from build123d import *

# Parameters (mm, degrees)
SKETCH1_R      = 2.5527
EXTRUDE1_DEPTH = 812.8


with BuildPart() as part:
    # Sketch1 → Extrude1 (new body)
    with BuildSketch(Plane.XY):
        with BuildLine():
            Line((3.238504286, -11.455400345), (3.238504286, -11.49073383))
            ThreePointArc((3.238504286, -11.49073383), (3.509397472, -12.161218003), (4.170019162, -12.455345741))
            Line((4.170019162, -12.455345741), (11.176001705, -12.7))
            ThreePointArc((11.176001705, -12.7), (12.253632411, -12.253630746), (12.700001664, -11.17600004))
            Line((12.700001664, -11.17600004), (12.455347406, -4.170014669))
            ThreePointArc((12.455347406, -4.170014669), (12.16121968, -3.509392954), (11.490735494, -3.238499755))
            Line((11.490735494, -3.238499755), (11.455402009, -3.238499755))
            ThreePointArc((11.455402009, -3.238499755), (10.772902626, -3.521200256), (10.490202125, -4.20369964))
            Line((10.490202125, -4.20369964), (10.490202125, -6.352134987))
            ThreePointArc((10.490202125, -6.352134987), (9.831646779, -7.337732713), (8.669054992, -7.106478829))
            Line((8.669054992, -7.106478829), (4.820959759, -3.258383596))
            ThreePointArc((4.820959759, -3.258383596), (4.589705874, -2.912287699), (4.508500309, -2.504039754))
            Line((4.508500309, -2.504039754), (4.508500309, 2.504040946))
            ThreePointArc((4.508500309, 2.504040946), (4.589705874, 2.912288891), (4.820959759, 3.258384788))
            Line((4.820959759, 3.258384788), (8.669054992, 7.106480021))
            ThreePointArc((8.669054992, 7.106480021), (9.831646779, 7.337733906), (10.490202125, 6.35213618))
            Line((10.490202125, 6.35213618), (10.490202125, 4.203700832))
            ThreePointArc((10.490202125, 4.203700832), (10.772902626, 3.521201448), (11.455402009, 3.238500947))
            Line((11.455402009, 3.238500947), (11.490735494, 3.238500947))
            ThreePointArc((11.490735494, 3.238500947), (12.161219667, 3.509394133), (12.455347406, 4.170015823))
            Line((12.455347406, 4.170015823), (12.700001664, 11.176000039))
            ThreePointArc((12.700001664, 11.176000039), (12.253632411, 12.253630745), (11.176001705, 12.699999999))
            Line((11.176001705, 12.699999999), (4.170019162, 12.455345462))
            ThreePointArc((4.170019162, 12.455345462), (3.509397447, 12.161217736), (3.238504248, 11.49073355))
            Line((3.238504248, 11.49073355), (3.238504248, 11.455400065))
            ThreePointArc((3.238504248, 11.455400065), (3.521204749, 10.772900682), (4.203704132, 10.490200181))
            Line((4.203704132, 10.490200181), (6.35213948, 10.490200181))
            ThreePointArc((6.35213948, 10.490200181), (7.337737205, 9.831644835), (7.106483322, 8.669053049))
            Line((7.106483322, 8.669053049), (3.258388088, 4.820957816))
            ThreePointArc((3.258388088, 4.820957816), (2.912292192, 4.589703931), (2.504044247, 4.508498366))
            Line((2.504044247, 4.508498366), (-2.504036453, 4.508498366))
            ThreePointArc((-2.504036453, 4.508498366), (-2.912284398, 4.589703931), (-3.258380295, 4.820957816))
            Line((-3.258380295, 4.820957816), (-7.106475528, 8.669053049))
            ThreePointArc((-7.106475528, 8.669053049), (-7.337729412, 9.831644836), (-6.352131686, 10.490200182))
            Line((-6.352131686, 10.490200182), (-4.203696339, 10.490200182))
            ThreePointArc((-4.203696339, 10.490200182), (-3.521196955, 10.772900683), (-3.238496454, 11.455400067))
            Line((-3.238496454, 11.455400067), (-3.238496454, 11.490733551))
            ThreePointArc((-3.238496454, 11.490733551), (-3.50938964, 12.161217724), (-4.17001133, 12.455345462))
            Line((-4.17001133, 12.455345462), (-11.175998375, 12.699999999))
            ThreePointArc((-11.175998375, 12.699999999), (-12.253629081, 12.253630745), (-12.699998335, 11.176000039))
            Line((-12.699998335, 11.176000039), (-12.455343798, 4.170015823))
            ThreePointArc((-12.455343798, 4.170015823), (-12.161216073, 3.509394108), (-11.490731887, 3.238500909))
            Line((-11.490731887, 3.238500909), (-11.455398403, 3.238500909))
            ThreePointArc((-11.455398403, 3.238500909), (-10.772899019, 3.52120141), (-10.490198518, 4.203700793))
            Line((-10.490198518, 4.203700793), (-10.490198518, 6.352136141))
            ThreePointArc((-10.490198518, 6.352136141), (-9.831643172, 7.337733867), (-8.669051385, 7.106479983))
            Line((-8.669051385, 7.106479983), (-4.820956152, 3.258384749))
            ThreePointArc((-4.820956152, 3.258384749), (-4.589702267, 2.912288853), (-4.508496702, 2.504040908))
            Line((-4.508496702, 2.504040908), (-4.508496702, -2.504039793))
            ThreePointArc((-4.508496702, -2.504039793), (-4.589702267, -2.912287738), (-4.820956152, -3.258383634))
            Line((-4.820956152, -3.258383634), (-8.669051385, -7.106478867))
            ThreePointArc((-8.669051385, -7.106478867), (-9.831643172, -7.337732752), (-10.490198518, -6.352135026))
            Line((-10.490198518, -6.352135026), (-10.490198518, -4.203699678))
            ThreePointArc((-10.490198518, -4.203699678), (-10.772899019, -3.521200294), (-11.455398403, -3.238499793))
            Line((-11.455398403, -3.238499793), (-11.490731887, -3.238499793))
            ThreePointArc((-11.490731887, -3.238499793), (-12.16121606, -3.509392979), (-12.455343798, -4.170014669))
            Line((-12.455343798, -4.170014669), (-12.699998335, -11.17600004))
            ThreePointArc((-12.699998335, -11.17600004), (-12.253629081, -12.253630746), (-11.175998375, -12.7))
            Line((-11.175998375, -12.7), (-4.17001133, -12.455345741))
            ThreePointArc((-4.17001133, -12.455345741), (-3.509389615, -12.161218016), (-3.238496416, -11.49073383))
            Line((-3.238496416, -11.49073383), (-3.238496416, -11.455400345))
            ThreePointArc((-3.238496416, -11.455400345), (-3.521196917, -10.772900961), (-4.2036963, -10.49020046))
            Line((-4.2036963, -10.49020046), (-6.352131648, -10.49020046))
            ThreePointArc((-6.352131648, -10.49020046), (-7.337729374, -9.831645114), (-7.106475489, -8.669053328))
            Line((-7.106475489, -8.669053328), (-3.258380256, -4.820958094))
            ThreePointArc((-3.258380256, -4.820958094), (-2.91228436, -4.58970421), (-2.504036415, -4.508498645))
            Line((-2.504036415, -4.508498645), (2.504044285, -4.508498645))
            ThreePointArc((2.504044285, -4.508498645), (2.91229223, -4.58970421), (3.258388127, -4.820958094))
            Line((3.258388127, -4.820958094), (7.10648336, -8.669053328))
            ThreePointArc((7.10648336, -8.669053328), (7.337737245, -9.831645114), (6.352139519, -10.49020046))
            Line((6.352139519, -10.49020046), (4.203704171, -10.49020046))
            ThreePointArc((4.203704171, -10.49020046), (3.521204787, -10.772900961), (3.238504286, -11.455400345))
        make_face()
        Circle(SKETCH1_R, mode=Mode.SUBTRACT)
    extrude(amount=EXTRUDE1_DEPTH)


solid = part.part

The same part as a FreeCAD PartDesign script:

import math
import FreeCAD as App
import Part
import Sketcher
from FreeCAD import Vector
Q = App.Units.Quantity

doc = App.newDocument("Part")
params = doc.addObject("Spreadsheet::Sheet", "Params")
for row, (alias, value) in enumerate([
    ("sketch1_radius", "0.06 in"),
    ("sketch1_diameter", "0.201 in"),
    ("sketch1_radius2", "0.038 in"),
    ("sketch1_radius3", "0.0420001 in"),
    ("pad1_length", "32 in"),
], start=1):
    params.set(f"A{row}", alias)
    params.set(f"B{row}", "=" + value)
    params.setAlias(f"B{row}", alias)

body = doc.addObject("PartDesign::Body", "Body")

# Sketch on XY plane
sketch1 = body.newObject("Sketcher::SketchObject", "Sketch")
sketch1.AttachmentSupport = (doc.getObject("XY_Plane"), [""])
sketch1.MapMode = "FlatFace"
sketch1.addGeometry([
    Part.LineSegment(Vector(3.239, -11.455, 0), Vector(3.239, -11.491, 0)),  # 0
    Part.ArcOfCircle(Part.Circle(Vector(4.204, -11.491, 0), Vector(0, 0, 1), 0.965), math.radians(180), math.radians(268)),  # 1
    Part.LineSegment(Vector(4.17, -12.455, 0), Vector(11.176, -12.7, 0)),  # 2
    Part.ArcOfCircle(Part.Circle(Vector(11.176, -11.176, 0), Vector(0, 0, 1), 1.524), math.radians(-90), math.radians(0)),  # 3
    Part.LineSegment(Vector(12.7, -11.176, 0), Vector(12.455, -4.17, 0)),  # 4
    Part.ArcOfCircle(Part.Circle(Vector(11.491, -4.204, 0), Vector(0, 0, 1), 0.965), math.radians(2), math.radians(90)),  # 5
    Part.LineSegment(Vector(11.491, -3.238, 0), Vector(11.455, -3.238, 0)),  # 6
    Part.ArcOfCircle(Part.Circle(Vector(11.455, -4.204, 0), Vector(0, 0, 1), 0.965), math.radians(90), math.radians(180)),  # 7
    Part.LineSegment(Vector(10.49, -4.204, 0), Vector(10.49, -6.352, 0)),  # 8
    Part.ArcOfCircle(Part.Circle(Vector(9.423, -6.352, 0), Vector(0, 0, 1), 1.067), math.radians(-135), math.radians(0)),  # 9
    Part.LineSegment(Vector(8.669, -7.106, 0), Vector(4.821, -3.258, 0)),  # 10
    Part.ArcOfCircle(Part.Circle(Vector(5.575, -2.504, 0), Vector(0, 0, 1), 1.067), math.radians(180), math.radians(225)),  # 11
    Part.LineSegment(Vector(4.509, -2.504, 0), Vector(4.509, 2.504, 0)),  # 12
    Part.ArcOfCircle(Part.Circle(Vector(5.575, 2.504, 0), Vector(0, 0, 1), 1.067), math.radians(135), math.radians(180)),  # 13
    Part.LineSegment(Vector(4.821, 3.258, 0), Vector(8.669, 7.106, 0)),  # 14
    Part.ArcOfCircle(Part.Circle(Vector(9.423, 6.352, 0), Vector(0, 0, 1), 1.067), math.radians(0), math.radians(135)),  # 15
    Part.LineSegment(Vector(10.49, 6.352, 0), Vector(10.49, 4.204, 0)),  # 16
    Part.ArcOfCircle(Part.Circle(Vector(11.455, 4.204, 0), Vector(0, 0, 1), 0.965), math.radians(180), math.radians(270)),  # 17
    Part.LineSegment(Vector(11.455, 3.239, 0), Vector(11.491, 3.239, 0)),  # 18
    Part.ArcOfCircle(Part.Circle(Vector(11.491, 4.204, 0), Vector(0, 0, 1), 0.965), math.radians(-90), math.radians(-2)),  # 19
    Part.LineSegment(Vector(12.455, 4.17, 0), Vector(12.7, 11.176, 0)),  # 20
    Part.ArcOfCircle(Part.Circle(Vector(11.176, 11.176, 0), Vector(0, 0, 1), 1.524), math.radians(0), math.radians(90)),  # 21
    Part.LineSegment(Vector(11.176, 12.7, 0), Vector(4.17, 12.455, 0)),  # 22
    Part.ArcOfCircle(Part.Circle(Vector(4.204, 11.491, 0), Vector(0, 0, 1), 0.965), math.radians(92), math.radians(180)),  # 23
    Part.LineSegment(Vector(3.239, 11.491, 0), Vector(3.239, 11.455, 0)),  # 24
    Part.ArcOfCircle(Part.Circle(Vector(4.204, 11.455, 0), Vector(0, 0, 1), 0.965), math.radians(-180), math.radians(-90)),  # 25
    Part.LineSegment(Vector(4.204, 10.49, 0), Vector(6.352, 10.49, 0)),  # 26
    Part.ArcOfCircle(Part.Circle(Vector(6.352, 9.423, 0), Vector(0, 0, 1), 1.067), math.radians(-45), math.radians(90)),  # 27
    Part.LineSegment(Vector(7.106, 8.669, 0), Vector(3.258, 4.821, 0)),  # 28
    Part.ArcOfCircle(Part.Circle(Vector(2.504, 5.575, 0), Vector(0, 0, 1), 1.067), math.radians(-90), math.radians(-45)),  # 29
    Part.LineSegment(Vector(2.504, 4.508, 0), Vector(-2.504, 4.508, 0)),  # 30
    Part.ArcOfCircle(Part.Circle(Vector(-2.504, 5.575, 0), Vector(0, 0, 1), 1.067), math.radians(-135), math.radians(-90)),  # 31
    Part.LineSegment(Vector(-3.258, 4.821, 0), Vector(-7.106, 8.669, 0)),  # 32
    Part.ArcOfCircle(Part.Circle(Vector(-6.352, 9.423, 0), Vector(0, 0, 1), 1.067), math.radians(90), math.radians(225)),  # 33
    Part.LineSegment(Vector(-6.352, 10.49, 0), Vector(-4.204, 10.49, 0)),  # 34
    Part.ArcOfCircle(Part.Circle(Vector(-4.204, 11.455, 0), Vector(0, 0, 1), 0.965), math.radians(-90), math.radians(0)),  # 35
    Part.LineSegment(Vector(-3.238, 11.455, 0), Vector(-3.238, 11.491, 0)),  # 36
    Part.ArcOfCircle(Part.Circle(Vector(-4.204, 11.491, 0), Vector(0, 0, 1), 0.965), math.radians(0), math.radians(88)),  # 37
    Part.LineSegment(Vector(-4.17, 12.455, 0), Vector(-11.176, 12.7, 0)),  # 38
    Part.ArcOfCircle(Part.Circle(Vector(-11.176, 11.176, 0), Vector(0, 0, 1), 1.524), math.radians(90), math.radians(180)),  # 39
    Part.LineSegment(Vector(-12.7, 11.176, 0), Vector(-12.455, 4.17, 0)),  # 40
    Part.ArcOfCircle(Part.Circle(Vector(-11.491, 4.204, 0), Vector(0, 0, 1), 0.965), math.radians(-178), math.radians(-90)),  # 41
    Part.LineSegment(Vector(-11.491, 3.239, 0), Vector(-11.455, 3.239, 0)),  # 42
    Part.ArcOfCircle(Part.Circle(Vector(-11.455, 4.204, 0), Vector(0, 0, 1), 0.965), math.radians(-90), math.radians(0)),  # 43
    Part.LineSegment(Vector(-10.49, 4.204, 0), Vector(-10.49, 6.352, 0)),  # 44
    Part.ArcOfCircle(Part.Circle(Vector(-9.423, 6.352, 0), Vector(0, 0, 1), 1.067), math.radians(45), math.radians(180)),  # 45
    Part.LineSegment(Vector(-8.669, 7.106, 0), Vector(-4.821, 3.258, 0)),  # 46
    Part.ArcOfCircle(Part.Circle(Vector(-5.575, 2.504, 0), Vector(0, 0, 1), 1.067), math.radians(0), math.radians(45)),  # 47
    Part.LineSegment(Vector(-4.508, 2.504, 0), Vector(-4.508, -2.504, 0)),  # 48
    Part.ArcOfCircle(Part.Circle(Vector(-5.575, -2.504, 0), Vector(0, 0, 1), 1.067), math.radians(-45), math.radians(0)),  # 49
    Part.LineSegment(Vector(-4.821, -3.258, 0), Vector(-8.669, -7.106, 0)),  # 50
    Part.ArcOfCircle(Part.Circle(Vector(-9.423, -6.352, 0), Vector(0, 0, 1), 1.067), math.radians(180), math.radians(315)),  # 51
    Part.LineSegment(Vector(-10.49, -6.352, 0), Vector(-10.49, -4.204, 0)),  # 52
    Part.ArcOfCircle(Part.Circle(Vector(-11.455, -4.204, 0), Vector(0, 0, 1), 0.965), math.radians(0), math.radians(90)),  # 53
    Part.LineSegment(Vector(-11.455, -3.238, 0), Vector(-11.491, -3.238, 0)),  # 54
    Part.ArcOfCircle(Part.Circle(Vector(-11.491, -4.204, 0), Vector(0, 0, 1), 0.965), math.radians(90), math.radians(178)),  # 55
    Part.LineSegment(Vector(-12.455, -4.17, 0), Vector(-12.7, -11.176, 0)),  # 56
    Part.ArcOfCircle(Part.Circle(Vector(-11.176, -11.176, 0), Vector(0, 0, 1), 1.524), math.radians(-180), math.radians(-90)),  # 57
    Part.LineSegment(Vector(-11.176, -12.7, 0), Vector(-4.17, -12.455, 0)),  # 58
    Part.ArcOfCircle(Part.Circle(Vector(-4.204, -11.491, 0), Vector(0, 0, 1), 0.965), math.radians(-88), math.radians(0)),  # 59
    Part.LineSegment(Vector(-3.238, -11.491, 0), Vector(-3.238, -11.455, 0)),  # 60
    Part.ArcOfCircle(Part.Circle(Vector(-4.204, -11.455, 0), Vector(0, 0, 1), 0.965), math.radians(0), math.radians(90)),  # 61
    Part.LineSegment(Vector(-4.204, -10.49, 0), Vector(-6.352, -10.49, 0)),  # 62
    Part.ArcOfCircle(Part.Circle(Vector(-6.352, -9.423, 0), Vector(0, 0, 1), 1.067), math.radians(135), math.radians(270)),  # 63
    Part.LineSegment(Vector(-7.106, -8.669, 0), Vector(-3.258, -4.821, 0)),  # 64
    Part.ArcOfCircle(Part.Circle(Vector(-2.504, -5.575, 0), Vector(0, 0, 1), 1.067), math.radians(90), math.radians(135)),  # 65
    Part.LineSegment(Vector(-2.504, -4.508, 0), Vector(2.504, -4.508, 0)),  # 66
    Part.ArcOfCircle(Part.Circle(Vector(2.504, -5.575, 0), Vector(0, 0, 1), 1.067), math.radians(45), math.radians(90)),  # 67
    Part.LineSegment(Vector(3.258, -4.821, 0), Vector(7.106, -8.669, 0)),  # 68
    Part.ArcOfCircle(Part.Circle(Vector(6.352, -9.423, 0), Vector(0, 0, 1), 1.067), math.radians(-90), math.radians(45)),  # 69
    Part.LineSegment(Vector(6.352, -10.49, 0), Vector(4.204, -10.49, 0)),  # 70
    Part.ArcOfCircle(Part.Circle(Vector(4.204, -11.455, 0), Vector(0, 0, 1), 0.965), math.radians(90), math.radians(180)),  # 71
    Part.Circle(Vector(0, 0, 0), Vector(0, 0, 1), 2.553),  # 72
], False)
sketch1.addConstraint([
    Sketcher.Constraint("Tangent", 0, 2, 1, 1),
    Sketcher.Constraint("Tangent", 1, 2, 2, 1),
    Sketcher.Constraint("Coincident", 2, 2, 3, 1),
    Sketcher.Constraint("Coincident", 3, 2, 4, 1),
    Sketcher.Constraint("Tangent", 4, 2, 5, 1),
    Sketcher.Constraint("Tangent", 5, 2, 6, 1),
    Sketcher.Constraint("Tangent", 6, 2, 7, 1),
    Sketcher.Constraint("Tangent", 7, 2, 8, 1),
    Sketcher.Constraint("Tangent", 8, 2, 9, 2),
    Sketcher.Constraint("Tangent", 9, 1, 10, 1),
    Sketcher.Constraint("Tangent", 10, 2, 11, 2),
    Sketcher.Constraint("Tangent", 11, 1, 12, 1),
    Sketcher.Constraint("Tangent", 12, 2, 13, 2),
    Sketcher.Constraint("Tangent", 13, 1, 14, 1),
    Sketcher.Constraint("Tangent", 14, 2, 15, 2),
    Sketcher.Constraint("Tangent", 15, 1, 16, 1),
    Sketcher.Constraint("Tangent", 16, 2, 17, 1),
    Sketcher.Constraint("Tangent", 17, 2, 18, 1),
    Sketcher.Constraint("Tangent", 18, 2, 19, 1),
    Sketcher.Constraint("Tangent", 19, 2, 20, 1),
    Sketcher.Constraint("Coincident", 20, 2, 21, 1),
    Sketcher.Constraint("Coincident", 21, 2, 22, 1),
    Sketcher.Constraint("Tangent", 22, 2, 23, 1),
    Sketcher.Constraint("Tangent", 23, 2, 24, 1),
    Sketcher.Constraint("Tangent", 24, 2, 25, 1),
    Sketcher.Constraint("Tangent", 25, 2, 26, 1),
    Sketcher.Constraint("Tangent", 26, 2, 27, 2),
    Sketcher.Constraint("Tangent", 27, 1, 28, 1),
    Sketcher.Constraint("Tangent", 28, 2, 29, 2),
    Sketcher.Constraint("Tangent", 29, 1, 30, 1),
    Sketcher.Constraint("Tangent", 30, 2, 31, 2),
    Sketcher.Constraint("Tangent", 31, 1, 32, 1),
    Sketcher.Constraint("Tangent", 32, 2, 33, 2),
    Sketcher.Constraint("Tangent", 33, 1, 34, 1),
    Sketcher.Constraint("Tangent", 34, 2, 35, 1),
    Sketcher.Constraint("Tangent", 35, 2, 36, 1),
    Sketcher.Constraint("Tangent", 36, 2, 37, 1),
    Sketcher.Constraint("Tangent", 37, 2, 38, 1),
    Sketcher.Constraint("Coincident", 38, 2, 39, 1),
    Sketcher.Constraint("Coincident", 39, 2, 40, 1),
    Sketcher.Constraint("Tangent", 40, 2, 41, 1),
    Sketcher.Constraint("Tangent", 41, 2, 42, 1),
    Sketcher.Constraint("Tangent", 42, 2, 43, 1),
    Sketcher.Constraint("Tangent", 43, 2, 44, 1),
    Sketcher.Constraint("Tangent", 44, 2, 45, 2),
    Sketcher.Constraint("Tangent", 45, 1, 46, 1),
    Sketcher.Constraint("Tangent", 46, 2, 47, 2),
    Sketcher.Constraint("Tangent", 47, 1, 48, 1),
    Sketcher.Constraint("Tangent", 48, 2, 49, 2),
    Sketcher.Constraint("Tangent", 49, 1, 50, 1),
    Sketcher.Constraint("Tangent", 50, 2, 51, 2),
    Sketcher.Constraint("Tangent", 51, 1, 52, 1),
    Sketcher.Constraint("Tangent", 52, 2, 53, 1),
    Sketcher.Constraint("Tangent", 53, 2, 54, 1),
    Sketcher.Constraint("Tangent", 54, 2, 55, 1),
    Sketcher.Constraint("Tangent", 55, 2, 56, 1),
    Sketcher.Constraint("Coincident", 56, 2, 57, 1),
    Sketcher.Constraint("Coincident", 57, 2, 58, 1),
    Sketcher.Constraint("Tangent", 58, 2, 59, 1),
    Sketcher.Constraint("Tangent", 59, 2, 60, 1),
    Sketcher.Constraint("Tangent", 60, 2, 61, 1),
    Sketcher.Constraint("Tangent", 61, 2, 62, 1),
    Sketcher.Constraint("Tangent", 62, 2, 63, 2),
    Sketcher.Constraint("Tangent", 63, 1, 64, 1),
    Sketcher.Constraint("Tangent", 64, 2, 65, 2),
    Sketcher.Constraint("Tangent", 65, 1, 66, 1),
    Sketcher.Constraint("Tangent", 66, 2, 67, 2),
    Sketcher.Constraint("Tangent", 67, 1, 68, 1),
    Sketcher.Constraint("Tangent", 68, 2, 69, 2),
    Sketcher.Constraint("Tangent", 69, 1, 70, 1),
    Sketcher.Constraint("Tangent", 70, 2, 71, 1),
    Sketcher.Constraint("Tangent", 71, 2, 0, 1),
    Sketcher.Constraint("Vertical", 0),
    Sketcher.Constraint("Horizontal", 6),
    Sketcher.Constraint("Vertical", 8),
    Sketcher.Constraint("Vertical", 12),
    Sketcher.Constraint("Vertical", 16),
    Sketcher.Constraint("Horizontal", 18),
    Sketcher.Constraint("Vertical", 24),
    Sketcher.Constraint("Horizontal", 26),
    Sketcher.Constraint("Horizontal", 30),
    Sketcher.Constraint("Horizontal", 34),
    Sketcher.Constraint("Vertical", 36),
    Sketcher.Constraint("Horizontal", 42),
    Sketcher.Constraint("Vertical", 44),
    Sketcher.Constraint("Vertical", 48),
    Sketcher.Constraint("Vertical", 52),
    Sketcher.Constraint("Horizontal", 54),
    Sketcher.Constraint("Vertical", 60),
    Sketcher.Constraint("Horizontal", 62),
    Sketcher.Constraint("Horizontal", 66),
    Sketcher.Constraint("Horizontal", 70),
    Sketcher.Constraint("Coincident", 72, 3, -1, 1),
    Sketcher.Constraint("Equal", 1, 5),
    Sketcher.Constraint("Equal", 5, 7),
    Sketcher.Constraint("Equal", 9, 11),
    Sketcher.Constraint("Equal", 11, 13),
    Sketcher.Constraint("Equal", 13, 15),
    Sketcher.Constraint("Equal", 7, 17),
    Sketcher.Constraint("Equal", 17, 19),
    Sketcher.Constraint("Equal", 3, 21),
    Sketcher.Constraint("Equal", 19, 23),
    Sketcher.Constraint("Equal", 23, 25),
    Sketcher.Constraint("Equal", 15, 27),
    Sketcher.Constraint("Equal", 27, 29),
    Sketcher.Constraint("Equal", 29, 31),
    Sketcher.Constraint("Equal", 31, 33),
    Sketcher.Constraint("Equal", 25, 35),
    Sketcher.Constraint("Equal", 35, 37),
    Sketcher.Constraint("Equal", 21, 39),
    Sketcher.Constraint("Equal", 37, 41),
    Sketcher.Constraint("Equal", 41, 43),
    Sketcher.Constraint("Equal", 33, 45),
    Sketcher.Constraint("Equal", 45, 47),
    Sketcher.Constraint("Equal", 47, 49),
    Sketcher.Constraint("Equal", 49, 51),
    Sketcher.Constraint("Equal", 43, 53),
    Sketcher.Constraint("Equal", 53, 55),
    Sketcher.Constraint("Equal", 39, 57),
    Sketcher.Constraint("Equal", 55, 59),
    Sketcher.Constraint("Equal", 59, 61),
    Sketcher.Constraint("Equal", 51, 63),
    Sketcher.Constraint("Equal", 63, 65),
    Sketcher.Constraint("Equal", 65, 67),
    Sketcher.Constraint("Equal", 67, 69),
    Sketcher.Constraint("Equal", 61, 71),
    Sketcher.Constraint("Symmetric", 1, 3, 37, 3, -1, 1),
    Sketcher.Constraint("Symmetric", 3, 3, 39, 3, -1, 1),
    Sketcher.Constraint("Symmetric", 5, 3, 41, 3, -1, 1),
    Sketcher.Constraint("Symmetric", 9, 3, 45, 3, -1, 1),
    Sketcher.Constraint("Symmetric", 11, 3, 47, 3, -1, 1),
    Sketcher.Constraint("Symmetric", 15, 3, 51, 3, -1, 1),
    Sketcher.Constraint("Symmetric", 19, 3, 55, 3, -1, 1),
    Sketcher.Constraint("Symmetric", 21, 3, 57, 3, -1, 1),
    Sketcher.Constraint("Symmetric", 23, 3, 59, 3, -1, 1),
    Sketcher.Constraint("Symmetric", 27, 3, 63, 3, -1, 1),
    Sketcher.Constraint("Symmetric", 29, 3, 65, 3, -1, 1),
    Sketcher.Constraint("Symmetric", 33, 3, 69, 3, -1, 1),
    Sketcher.Constraint("Symmetric", 27, 3, 33, 3, -2),
    Sketcher.Constraint("Symmetric", 23, 3, 37, 3, -2),
    Sketcher.Constraint("Symmetric", 21, 3, 39, 3, -2),
    Sketcher.Constraint("Symmetric", 19, 3, 41, 3, -2),
    Sketcher.Constraint("Symmetric", 15, 3, 45, 3, -2),
    Sketcher.Constraint("Perpendicular", 10, 14),
    Sketcher.Constraint("Perpendicular", 2, 20),
    Sketcher.Constraint("Perpendicular", 4, 22),
    Sketcher.Constraint("Parallel", 14, 28),
    Sketcher.Constraint("Perpendicular", 28, 32),
    Sketcher.Constraint("Perpendicular", 20, 38),
    Sketcher.Constraint("Perpendicular", 22, 40),
    Sketcher.Constraint("Perpendicular", 46, 50),
    Sketcher.Constraint("Perpendicular", 38, 56),
    Sketcher.Constraint("Perpendicular", 40, 58),
    Sketcher.Constraint("Perpendicular", 64, 68),
    Sketcher.Constraint("Horizontal", 13, 3, 47, 3),
    Sketcher.Constraint("Horizontal", 57, 3, 3, 2),
    Sketcher.Constraint("Horizontal", 39, 3, 20, 2),
    Sketcher.Constraint("Vertical", 21, 3, 2, 2),
    Sketcher.Constraint("Equal", 54, 0),
    Sketcher.Constraint("Equal", 70, 8),
    Sketcher.Constraint("Equal", 66, 12),
    Sketcher.Constraint("Equal", 2, 20),
    Sketcher.Constraint("Equal", 14, 28),
    Sketcher.Constraint("Radius", 3, Q("0.06 in")),
    Sketcher.Constraint("Diameter", 72, Q("0.201 in")),
    Sketcher.Constraint("Angle", 2, Q("-2 deg")),
    Sketcher.Constraint("Radius", 1, Q("0.038 in")),
    Sketcher.Constraint("Radius", 9, Q("0.0420001 in")),
    Sketcher.Constraint("DistanceY", 2, 2, -1, 1, Q("0.5 in")),
    Sketcher.Constraint("DistanceX", -1, 1, 7, 3, Q("0.4510001 in")),
    Sketcher.Constraint("DistanceX", -1, 1, 1, 3, Q("0.1655002 in")),
    Sketcher.Constraint("DistanceX", -1, 1, 11, 3, Q("0.2195001 in")),
    Sketcher.Constraint("DistanceX", 30, 2, 30, 1, Q("5.008081 mm")),
])
sketch1.setExpression("Constraints[163]", "Params.sketch1_radius")
sketch1.setExpression("Constraints[164]", "Params.sketch1_diameter")
sketch1.setExpression("Constraints[166]", "Params.sketch1_radius2")
sketch1.setExpression("Constraints[167]", "Params.sketch1_radius3")
pad1 = body.newObject("PartDesign::Pad", "Pad")
pad1.Profile = sketch1
pad1.setExpression("Length", "Params.pad1_length")

doc.recompute()
